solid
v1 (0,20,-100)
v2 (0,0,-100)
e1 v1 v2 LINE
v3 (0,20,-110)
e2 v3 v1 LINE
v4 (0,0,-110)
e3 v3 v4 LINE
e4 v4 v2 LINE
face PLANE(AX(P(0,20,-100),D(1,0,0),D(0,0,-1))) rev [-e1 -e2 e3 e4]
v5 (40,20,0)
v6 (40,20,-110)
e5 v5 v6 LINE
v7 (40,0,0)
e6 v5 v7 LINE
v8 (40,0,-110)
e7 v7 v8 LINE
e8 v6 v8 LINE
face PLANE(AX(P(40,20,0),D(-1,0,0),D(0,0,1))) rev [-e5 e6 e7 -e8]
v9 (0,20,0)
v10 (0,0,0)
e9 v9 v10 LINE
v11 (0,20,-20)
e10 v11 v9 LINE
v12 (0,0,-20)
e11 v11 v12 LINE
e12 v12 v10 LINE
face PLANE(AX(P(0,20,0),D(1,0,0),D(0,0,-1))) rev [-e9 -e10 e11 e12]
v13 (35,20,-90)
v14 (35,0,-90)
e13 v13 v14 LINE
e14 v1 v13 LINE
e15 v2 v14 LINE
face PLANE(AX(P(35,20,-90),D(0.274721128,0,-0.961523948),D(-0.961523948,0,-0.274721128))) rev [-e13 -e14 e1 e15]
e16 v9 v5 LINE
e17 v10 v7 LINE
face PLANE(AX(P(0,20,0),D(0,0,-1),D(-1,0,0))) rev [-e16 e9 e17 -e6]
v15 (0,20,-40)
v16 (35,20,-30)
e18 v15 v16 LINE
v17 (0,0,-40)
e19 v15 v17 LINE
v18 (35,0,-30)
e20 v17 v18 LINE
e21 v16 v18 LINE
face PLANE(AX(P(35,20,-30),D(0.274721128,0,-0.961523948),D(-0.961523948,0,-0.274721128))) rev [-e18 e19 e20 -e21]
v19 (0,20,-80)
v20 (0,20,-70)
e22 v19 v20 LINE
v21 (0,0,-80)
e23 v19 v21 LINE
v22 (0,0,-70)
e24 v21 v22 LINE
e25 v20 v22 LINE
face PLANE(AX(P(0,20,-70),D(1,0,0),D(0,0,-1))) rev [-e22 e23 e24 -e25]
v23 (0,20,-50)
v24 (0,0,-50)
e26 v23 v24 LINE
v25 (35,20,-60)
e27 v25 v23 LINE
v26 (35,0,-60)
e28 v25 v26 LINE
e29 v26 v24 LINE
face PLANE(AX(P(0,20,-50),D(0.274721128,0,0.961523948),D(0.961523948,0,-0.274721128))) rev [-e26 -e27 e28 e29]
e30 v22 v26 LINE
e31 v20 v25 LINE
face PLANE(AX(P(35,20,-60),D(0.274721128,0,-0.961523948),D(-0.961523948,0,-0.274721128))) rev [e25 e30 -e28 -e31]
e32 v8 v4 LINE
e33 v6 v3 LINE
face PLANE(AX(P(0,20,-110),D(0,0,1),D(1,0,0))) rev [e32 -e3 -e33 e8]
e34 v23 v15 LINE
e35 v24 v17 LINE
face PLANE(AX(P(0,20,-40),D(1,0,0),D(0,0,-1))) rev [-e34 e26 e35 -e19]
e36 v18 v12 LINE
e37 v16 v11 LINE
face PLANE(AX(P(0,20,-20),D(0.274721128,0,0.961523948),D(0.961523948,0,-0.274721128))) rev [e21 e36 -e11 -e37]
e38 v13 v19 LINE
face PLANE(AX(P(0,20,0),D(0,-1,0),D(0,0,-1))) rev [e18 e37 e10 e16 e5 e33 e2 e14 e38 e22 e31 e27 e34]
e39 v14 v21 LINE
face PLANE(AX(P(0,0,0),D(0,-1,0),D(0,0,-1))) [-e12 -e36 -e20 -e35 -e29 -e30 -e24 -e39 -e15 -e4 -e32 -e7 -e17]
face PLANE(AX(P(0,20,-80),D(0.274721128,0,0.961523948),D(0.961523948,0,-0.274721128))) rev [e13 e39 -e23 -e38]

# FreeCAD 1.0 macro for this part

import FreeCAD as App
import Part
import Sketcher
Q = App.Units.Quantity

doc = App.newDocument("Part")
params = doc.addObject("Spreadsheet::Sheet", "Params")
for row, (alias, value) in enumerate([
    ("sketch1_width", "40 mm"),
    ("sketch1_height", "10 mm"),
    ("sketch1_height2", "20 mm"),
    ("sketch1_height3", "110 mm"),
    ("pad1_length", "20 mm"),
], start=1):
    params.set(f"A{row}", alias)
    params.set(f"B{row}", "=" + value)
    params.setAlias(f"B{row}", alias)

body = doc.addObject("PartDesign::Body", "Body")

sketch1 = body.newObject("Sketcher::SketchObject", "Sketch")
sketch1.AttachmentSupport = (doc.getObject("XZ_Plane"), [""])
sketch1.MapMode = "FlatFace"
sketch1.addGeometry([
    Part.LineSegment(App.Vector(0, -110, 0), App.Vector(0, -100, 0)),
    Part.LineSegment(App.Vector(0, -100, 0), App.Vector(35, -90, 0)),
    Part.LineSegment(App.Vector(35, -90, 0), App.Vector(0, -80, 0)),
    Part.LineSegment(App.Vector(0, -80, 0), App.Vector(0, -70, 0)),
    Part.LineSegment(App.Vector(0, -70, 0), App.Vector(35, -60, 0)),
    Part.LineSegment(App.Vector(35, -60, 0), App.Vector(0, -50, 0)),
    Part.LineSegment(App.Vector(0, -50, 0), App.Vector(0, -40, 0)),
    Part.LineSegment(App.Vector(0, -40, 0), App.Vector(35, -30, 0)),
    Part.LineSegment(App.Vector(35, -30, 0), App.Vector(0, -20, 0)),
    Part.LineSegment(App.Vector(0, -20, 0), App.Vector(0, 0, 0)),
    Part.LineSegment(App.Vector(0, 0, 0), App.Vector(40, 0, 0)),
    Part.LineSegment(App.Vector(40, 0, 0), App.Vector(40, -110, 0)),
    Part.LineSegment(App.Vector(40, -110, 0), App.Vector(0, -110, 0)),
], False)
sketch1.addConstraint([
    Sketcher.Constraint("Coincident", 0, 2, 1, 1),
    Sketcher.Constraint("Coincident", 1, 2, 2, 1),
    Sketcher.Constraint("Coincident", 2, 2, 3, 1),
    Sketcher.Constraint("Coincident", 3, 2, 4, 1),
    Sketcher.Constraint("Coincident", 4, 2, 5, 1),
    Sketcher.Constraint("Coincident", 5, 2, 6, 1),
    Sketcher.Constraint("Coincident", 6, 2, 7, 1),
    Sketcher.Constraint("Coincident", 7, 2, 8, 1),
    Sketcher.Constraint("Coincident", 8, 2, 9, 1),
    Sketcher.Constraint("Coincident", 9, 2, 10, 1),
    Sketcher.Constraint("Coincident", 10, 2, 11, 1),
    Sketcher.Constraint("Coincident", 11, 2, 12, 1),
    Sketcher.Constraint("Coincident", 12, 2, 0, 1),
    Sketcher.Constraint("Vertical", 0),
    Sketcher.Constraint("Vertical", 3),
    Sketcher.Constraint("Vertical", 6),
    Sketcher.Constraint("Vertical", 9),
    Sketcher.Constraint("Horizontal", 10),
    Sketcher.Constraint("Vertical", 11),
    Sketcher.Constraint("Horizontal", 12),
    Sketcher.Constraint("Coincident", 9, 2, -1, 1),
    Sketcher.Constraint("PointOnObject", 0, 2, -2),
    Sketcher.Constraint("PointOnObject", 2, 2, -2),
    Sketcher.Constraint("PointOnObject", 5, 2, -2),
    Sketcher.Constraint("Parallel", 1, 4),
    Sketcher.Constraint("Parallel", 2, 5),
    Sketcher.Constraint("Parallel", 4, 7),
    Sketcher.Constraint("Parallel", 5, 8),
    Sketcher.Constraint("Vertical", 1, 2, 4, 2),
    Sketcher.Constraint("Vertical", 4, 2, 7, 2),
    Sketcher.Constraint("Equal", 0, 3),
    Sketcher.Constraint("Equal", 3, 6),
    Sketcher.Constraint("Equal", 1, 2),
    Sketcher.Constraint("DistanceX", 10, 1, 10, 2, Q("40 mm")),
    Sketcher.Constraint("DistanceY", 0, 1, 0, 2, Q("10 mm")),
    Sketcher.Constraint("DistanceY", 9, 1, 9, 2, Q("20 mm")),
    Sketcher.Constraint("DistanceY", 11, 2, 11, 1, Q("110 mm")),
    Sketcher.Constraint("DistanceX", -1, 1, 1, 2, Q("35 mm")),
])
sketch1.setExpression("Constraints[33]", "Params.sketch1_width")
sketch1.setExpression("Constraints[34]", "Params.sketch1_height")
sketch1.setExpression("Constraints[35]", "Params.sketch1_height2")
sketch1.setExpression("Constraints[36]", "Params.sketch1_height3")
pad1 = body.newObject("PartDesign::Pad", "Pad")
pad1.Profile = sketch1
pad1.setExpression("Length", "Params.pad1_length")
pad1.Reversed = True

doc.recompute()
